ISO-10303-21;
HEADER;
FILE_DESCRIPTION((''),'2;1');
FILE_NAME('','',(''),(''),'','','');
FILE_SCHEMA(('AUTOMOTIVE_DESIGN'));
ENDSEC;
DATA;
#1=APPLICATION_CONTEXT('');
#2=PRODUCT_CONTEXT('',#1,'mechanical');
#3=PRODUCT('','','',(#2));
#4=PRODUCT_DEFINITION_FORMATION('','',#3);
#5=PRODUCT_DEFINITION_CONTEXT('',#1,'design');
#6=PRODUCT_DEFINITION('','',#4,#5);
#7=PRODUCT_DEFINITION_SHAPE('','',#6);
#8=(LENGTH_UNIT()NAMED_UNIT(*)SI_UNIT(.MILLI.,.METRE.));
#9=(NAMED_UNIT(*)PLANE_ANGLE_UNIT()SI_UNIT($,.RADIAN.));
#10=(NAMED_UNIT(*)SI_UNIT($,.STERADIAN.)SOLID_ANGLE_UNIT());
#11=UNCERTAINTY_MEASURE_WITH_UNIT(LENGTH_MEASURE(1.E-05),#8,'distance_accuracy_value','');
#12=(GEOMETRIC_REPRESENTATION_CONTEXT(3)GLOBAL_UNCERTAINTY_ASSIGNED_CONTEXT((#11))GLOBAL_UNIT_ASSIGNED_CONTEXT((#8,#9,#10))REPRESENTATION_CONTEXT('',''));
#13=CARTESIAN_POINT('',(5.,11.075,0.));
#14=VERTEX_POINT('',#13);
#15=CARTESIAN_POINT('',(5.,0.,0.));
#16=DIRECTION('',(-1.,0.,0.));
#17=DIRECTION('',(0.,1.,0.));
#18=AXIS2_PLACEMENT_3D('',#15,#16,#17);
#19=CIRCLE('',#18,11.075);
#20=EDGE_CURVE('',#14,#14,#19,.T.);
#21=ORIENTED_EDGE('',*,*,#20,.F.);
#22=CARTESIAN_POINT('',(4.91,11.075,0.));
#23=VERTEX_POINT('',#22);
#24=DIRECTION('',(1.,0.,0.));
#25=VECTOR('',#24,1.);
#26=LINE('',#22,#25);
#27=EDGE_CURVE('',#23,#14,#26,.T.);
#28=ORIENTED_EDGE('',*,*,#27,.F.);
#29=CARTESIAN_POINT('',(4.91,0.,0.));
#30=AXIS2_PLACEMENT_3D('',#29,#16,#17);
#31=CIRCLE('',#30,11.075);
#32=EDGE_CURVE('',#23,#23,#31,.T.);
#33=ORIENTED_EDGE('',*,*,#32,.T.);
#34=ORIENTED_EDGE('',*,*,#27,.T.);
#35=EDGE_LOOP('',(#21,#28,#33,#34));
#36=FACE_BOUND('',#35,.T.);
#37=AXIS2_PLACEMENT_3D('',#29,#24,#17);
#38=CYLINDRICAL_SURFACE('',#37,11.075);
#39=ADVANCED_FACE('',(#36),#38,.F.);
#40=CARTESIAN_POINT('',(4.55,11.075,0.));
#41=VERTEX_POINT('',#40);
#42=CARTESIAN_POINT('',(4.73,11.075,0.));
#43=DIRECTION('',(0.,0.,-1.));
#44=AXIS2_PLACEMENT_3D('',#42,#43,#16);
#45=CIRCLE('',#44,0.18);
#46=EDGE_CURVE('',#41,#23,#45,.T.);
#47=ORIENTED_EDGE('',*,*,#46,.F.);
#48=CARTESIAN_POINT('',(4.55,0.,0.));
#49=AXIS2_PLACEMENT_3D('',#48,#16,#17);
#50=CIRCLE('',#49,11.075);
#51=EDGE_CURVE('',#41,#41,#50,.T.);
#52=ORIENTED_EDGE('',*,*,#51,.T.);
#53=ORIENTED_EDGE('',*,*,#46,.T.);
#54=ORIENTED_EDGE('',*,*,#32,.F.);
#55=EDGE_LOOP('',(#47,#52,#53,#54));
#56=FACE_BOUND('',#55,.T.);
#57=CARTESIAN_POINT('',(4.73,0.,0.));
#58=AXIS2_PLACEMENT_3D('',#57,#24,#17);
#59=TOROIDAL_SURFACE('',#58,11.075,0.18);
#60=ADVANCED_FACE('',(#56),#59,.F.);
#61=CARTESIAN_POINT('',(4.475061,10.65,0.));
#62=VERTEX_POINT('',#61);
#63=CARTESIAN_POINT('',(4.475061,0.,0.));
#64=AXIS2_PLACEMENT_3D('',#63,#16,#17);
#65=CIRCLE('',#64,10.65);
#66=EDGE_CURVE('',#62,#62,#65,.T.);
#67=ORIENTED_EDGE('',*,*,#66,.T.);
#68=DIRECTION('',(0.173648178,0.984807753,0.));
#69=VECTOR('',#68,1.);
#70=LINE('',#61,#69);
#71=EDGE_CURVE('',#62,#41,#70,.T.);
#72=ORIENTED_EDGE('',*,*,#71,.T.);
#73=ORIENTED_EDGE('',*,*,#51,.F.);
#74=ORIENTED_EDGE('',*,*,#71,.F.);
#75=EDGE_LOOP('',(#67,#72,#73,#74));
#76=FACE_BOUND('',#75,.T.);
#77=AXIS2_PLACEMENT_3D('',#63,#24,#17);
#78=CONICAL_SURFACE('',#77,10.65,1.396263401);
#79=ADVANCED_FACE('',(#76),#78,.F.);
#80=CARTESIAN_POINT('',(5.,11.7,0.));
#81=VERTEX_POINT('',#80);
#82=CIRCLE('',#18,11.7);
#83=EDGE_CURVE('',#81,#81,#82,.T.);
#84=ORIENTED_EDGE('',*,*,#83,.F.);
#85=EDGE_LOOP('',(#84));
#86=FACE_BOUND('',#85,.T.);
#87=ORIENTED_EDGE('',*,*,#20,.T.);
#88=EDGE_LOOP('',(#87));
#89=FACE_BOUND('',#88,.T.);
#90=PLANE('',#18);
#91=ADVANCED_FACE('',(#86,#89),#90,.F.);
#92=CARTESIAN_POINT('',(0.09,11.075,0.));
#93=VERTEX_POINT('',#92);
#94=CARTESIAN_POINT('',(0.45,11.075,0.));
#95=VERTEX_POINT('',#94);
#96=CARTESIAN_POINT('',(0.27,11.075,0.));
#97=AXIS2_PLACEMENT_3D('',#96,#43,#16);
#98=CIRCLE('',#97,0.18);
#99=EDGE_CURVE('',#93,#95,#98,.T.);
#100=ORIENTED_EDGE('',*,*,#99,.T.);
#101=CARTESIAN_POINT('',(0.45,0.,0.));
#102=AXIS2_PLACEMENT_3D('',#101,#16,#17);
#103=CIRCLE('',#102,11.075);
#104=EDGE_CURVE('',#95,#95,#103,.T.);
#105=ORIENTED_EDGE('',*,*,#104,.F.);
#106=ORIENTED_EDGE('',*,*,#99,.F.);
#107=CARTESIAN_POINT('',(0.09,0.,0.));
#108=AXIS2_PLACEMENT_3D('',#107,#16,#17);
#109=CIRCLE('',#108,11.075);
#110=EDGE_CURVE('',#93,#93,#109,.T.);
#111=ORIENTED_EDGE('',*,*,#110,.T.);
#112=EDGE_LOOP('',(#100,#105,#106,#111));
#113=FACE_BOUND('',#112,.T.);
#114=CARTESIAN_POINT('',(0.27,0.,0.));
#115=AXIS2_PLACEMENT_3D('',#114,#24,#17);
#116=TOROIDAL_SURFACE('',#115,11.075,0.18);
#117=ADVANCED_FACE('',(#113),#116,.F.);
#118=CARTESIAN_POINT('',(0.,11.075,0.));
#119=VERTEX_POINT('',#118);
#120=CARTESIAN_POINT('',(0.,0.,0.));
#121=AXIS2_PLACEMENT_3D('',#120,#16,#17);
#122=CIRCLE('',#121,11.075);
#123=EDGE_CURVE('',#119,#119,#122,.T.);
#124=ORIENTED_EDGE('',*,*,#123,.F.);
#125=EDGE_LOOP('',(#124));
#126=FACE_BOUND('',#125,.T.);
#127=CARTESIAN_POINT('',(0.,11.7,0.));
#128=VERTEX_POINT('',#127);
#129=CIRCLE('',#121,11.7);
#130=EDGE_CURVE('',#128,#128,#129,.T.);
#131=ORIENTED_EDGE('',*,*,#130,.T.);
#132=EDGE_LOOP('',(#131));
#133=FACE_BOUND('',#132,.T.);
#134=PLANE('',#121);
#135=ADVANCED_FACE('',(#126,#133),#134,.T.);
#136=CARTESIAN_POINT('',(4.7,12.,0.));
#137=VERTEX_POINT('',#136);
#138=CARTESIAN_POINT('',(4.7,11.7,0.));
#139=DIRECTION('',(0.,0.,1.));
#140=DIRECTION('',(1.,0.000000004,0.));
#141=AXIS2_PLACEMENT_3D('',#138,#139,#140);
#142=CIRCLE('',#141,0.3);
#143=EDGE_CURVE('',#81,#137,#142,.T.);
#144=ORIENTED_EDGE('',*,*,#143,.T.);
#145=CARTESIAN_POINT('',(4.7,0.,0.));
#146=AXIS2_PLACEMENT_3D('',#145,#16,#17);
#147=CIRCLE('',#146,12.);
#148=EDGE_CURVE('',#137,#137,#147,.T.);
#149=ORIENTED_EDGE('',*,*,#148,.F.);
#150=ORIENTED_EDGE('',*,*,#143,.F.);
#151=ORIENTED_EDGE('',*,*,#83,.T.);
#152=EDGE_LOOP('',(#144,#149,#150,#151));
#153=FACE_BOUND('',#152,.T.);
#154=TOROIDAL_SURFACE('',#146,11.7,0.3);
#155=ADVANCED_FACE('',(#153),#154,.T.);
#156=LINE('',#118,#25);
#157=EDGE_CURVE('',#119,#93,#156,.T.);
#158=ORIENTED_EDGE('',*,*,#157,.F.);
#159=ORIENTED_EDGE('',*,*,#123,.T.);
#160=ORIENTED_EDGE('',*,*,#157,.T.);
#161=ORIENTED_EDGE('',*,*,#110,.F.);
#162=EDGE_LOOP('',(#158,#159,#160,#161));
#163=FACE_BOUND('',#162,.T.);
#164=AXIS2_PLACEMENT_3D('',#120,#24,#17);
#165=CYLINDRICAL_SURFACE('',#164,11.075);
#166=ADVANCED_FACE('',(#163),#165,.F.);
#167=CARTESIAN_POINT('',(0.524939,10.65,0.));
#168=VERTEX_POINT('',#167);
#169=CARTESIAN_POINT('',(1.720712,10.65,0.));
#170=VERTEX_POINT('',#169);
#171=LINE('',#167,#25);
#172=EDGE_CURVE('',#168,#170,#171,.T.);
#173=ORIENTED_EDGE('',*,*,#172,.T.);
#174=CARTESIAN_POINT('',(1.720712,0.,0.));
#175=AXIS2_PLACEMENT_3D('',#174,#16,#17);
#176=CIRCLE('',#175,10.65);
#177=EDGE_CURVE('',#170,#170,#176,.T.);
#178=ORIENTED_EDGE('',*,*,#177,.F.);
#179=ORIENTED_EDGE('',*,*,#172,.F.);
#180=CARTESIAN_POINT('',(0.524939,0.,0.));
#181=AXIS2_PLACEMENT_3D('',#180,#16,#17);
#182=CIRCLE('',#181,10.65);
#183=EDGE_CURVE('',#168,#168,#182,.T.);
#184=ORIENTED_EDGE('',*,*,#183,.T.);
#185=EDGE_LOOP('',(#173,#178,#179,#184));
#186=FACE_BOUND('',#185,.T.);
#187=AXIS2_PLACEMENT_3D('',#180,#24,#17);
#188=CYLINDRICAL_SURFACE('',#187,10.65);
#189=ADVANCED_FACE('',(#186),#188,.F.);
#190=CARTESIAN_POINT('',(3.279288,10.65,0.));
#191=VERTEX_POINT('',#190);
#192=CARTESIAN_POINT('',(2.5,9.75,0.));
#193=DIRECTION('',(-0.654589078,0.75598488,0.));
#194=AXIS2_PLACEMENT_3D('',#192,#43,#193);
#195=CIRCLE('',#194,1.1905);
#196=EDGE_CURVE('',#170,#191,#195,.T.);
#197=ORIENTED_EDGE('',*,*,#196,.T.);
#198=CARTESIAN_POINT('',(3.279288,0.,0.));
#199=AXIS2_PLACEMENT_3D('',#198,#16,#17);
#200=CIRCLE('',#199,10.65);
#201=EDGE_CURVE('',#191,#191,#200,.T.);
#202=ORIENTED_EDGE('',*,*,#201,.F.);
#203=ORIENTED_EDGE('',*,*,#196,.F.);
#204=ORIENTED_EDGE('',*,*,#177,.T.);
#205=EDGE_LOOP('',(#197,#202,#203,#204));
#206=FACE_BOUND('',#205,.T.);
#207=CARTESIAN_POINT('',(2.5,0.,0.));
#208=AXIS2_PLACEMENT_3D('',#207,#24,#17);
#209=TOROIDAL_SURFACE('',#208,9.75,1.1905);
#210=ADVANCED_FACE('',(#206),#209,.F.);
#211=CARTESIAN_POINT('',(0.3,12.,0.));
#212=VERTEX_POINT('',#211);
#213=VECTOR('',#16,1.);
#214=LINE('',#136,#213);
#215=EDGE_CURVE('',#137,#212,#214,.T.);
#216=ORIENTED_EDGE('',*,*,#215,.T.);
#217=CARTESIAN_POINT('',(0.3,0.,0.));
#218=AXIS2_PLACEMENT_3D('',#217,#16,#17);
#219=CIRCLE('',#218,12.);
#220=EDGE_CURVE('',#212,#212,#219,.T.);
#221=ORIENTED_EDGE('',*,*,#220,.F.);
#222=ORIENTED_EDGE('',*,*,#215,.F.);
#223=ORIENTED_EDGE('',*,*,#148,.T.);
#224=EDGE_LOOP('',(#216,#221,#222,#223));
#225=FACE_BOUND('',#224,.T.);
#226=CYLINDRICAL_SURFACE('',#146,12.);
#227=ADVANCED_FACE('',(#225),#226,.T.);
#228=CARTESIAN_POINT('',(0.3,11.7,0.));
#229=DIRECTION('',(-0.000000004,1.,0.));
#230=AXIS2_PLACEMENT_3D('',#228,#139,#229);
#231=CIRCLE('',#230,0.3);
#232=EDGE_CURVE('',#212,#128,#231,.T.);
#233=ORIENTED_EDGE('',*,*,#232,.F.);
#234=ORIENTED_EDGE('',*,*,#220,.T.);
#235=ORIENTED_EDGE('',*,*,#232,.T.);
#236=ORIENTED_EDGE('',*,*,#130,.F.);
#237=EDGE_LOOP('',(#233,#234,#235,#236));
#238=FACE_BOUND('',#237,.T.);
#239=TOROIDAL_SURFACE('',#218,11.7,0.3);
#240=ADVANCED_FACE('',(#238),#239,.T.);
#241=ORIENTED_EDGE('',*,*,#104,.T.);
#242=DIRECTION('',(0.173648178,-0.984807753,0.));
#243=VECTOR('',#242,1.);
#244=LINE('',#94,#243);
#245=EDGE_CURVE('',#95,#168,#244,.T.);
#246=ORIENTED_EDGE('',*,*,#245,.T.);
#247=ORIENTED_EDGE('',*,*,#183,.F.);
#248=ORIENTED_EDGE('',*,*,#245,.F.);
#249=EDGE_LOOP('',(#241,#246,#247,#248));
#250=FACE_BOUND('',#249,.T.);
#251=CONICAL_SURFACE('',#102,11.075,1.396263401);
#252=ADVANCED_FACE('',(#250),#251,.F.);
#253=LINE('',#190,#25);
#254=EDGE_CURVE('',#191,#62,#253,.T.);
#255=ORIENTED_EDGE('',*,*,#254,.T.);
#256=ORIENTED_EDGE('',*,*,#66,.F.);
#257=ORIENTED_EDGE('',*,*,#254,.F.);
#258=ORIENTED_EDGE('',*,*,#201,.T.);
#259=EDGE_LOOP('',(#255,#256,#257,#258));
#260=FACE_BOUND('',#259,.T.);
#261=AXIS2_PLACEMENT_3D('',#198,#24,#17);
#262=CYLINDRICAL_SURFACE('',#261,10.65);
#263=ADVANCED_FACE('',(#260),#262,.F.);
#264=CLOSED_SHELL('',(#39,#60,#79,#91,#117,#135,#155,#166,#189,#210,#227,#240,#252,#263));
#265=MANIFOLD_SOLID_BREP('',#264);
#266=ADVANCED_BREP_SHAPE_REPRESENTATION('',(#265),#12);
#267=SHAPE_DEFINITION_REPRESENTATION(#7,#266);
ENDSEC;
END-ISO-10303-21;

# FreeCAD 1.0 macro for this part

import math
import FreeCAD as App
import Part
import Sketcher
Q = App.Units.Quantity

doc = App.newDocument("Part")
body = doc.addObject("PartDesign::Body", "Body")

sketch1 = body.newObject("Sketcher::SketchObject", "Sketch")
sketch1.AttachmentSupport = (doc.getObject("XY_Plane"), [""])
sketch1.MapMode = "FlatFace"
sketch1.addGeometry(Part.LineSegment(App.Vector(0, 11.07, 0), App.Vector(0.09, 11.07, 0)), False)
sketch1.addGeometry(Part.ArcOfCircle(Part.Circle(App.Vector(0.27, 11.07, 0), App.Vector(0, 0, 1), 0.18), math.radians(0), math.radians(180)), False)
sketch1.addGeometry(Part.LineSegment(App.Vector(0.45, 11.07, 0), App.Vector(0.52, 10.65, 0)), False)
sketch1.addGeometry(Part.LineSegment(App.Vector(0.52, 10.65, 0), App.Vector(1.72, 10.65, 0)), False)
sketch1.addGeometry(Part.ArcOfCircle(Part.Circle(App.Vector(2.5, 9.75, 0), App.Vector(0, 0, 1), 1.19), math.radians(49), math.radians(131)), False)
sketch1.addGeometry(Part.LineSegment(App.Vector(3.28, 10.65, 0), App.Vector(4.48, 10.65, 0)), False)
sketch1.addGeometry(Part.LineSegment(App.Vector(4.48, 10.65, 0), App.Vector(4.55, 11.07, 0)), False)
sketch1.addGeometry(Part.ArcOfCircle(Part.Circle(App.Vector(4.73, 11.07, 0), App.Vector(0, 0, 1), 0.18), math.radians(0), math.radians(180)), False)
sketch1.addGeometry(Part.LineSegment(App.Vector(4.91, 11.07, 0), App.Vector(5, 11.07, 0)), False)
sketch1.addGeometry(Part.LineSegment(App.Vector(5, 11.07, 0), App.Vector(5, 11.7, 0)), False)
sketch1.addGeometry(Part.ArcOfCircle(Part.Circle(App.Vector(4.7, 11.7, 0), App.Vector(0, 0, 1), 0.3), math.radians(0), math.radians(90)), False)
sketch1.addGeometry(Part.LineSegment(App.Vector(4.7, 12, 0), App.Vector(0.3, 12, 0)), False)
sketch1.addGeometry(Part.ArcOfCircle(Part.Circle(App.Vector(0.3, 11.7, 0), App.Vector(0, 0, 1), 0.3), math.radians(90), math.radians(180)), False)
sketch1.addGeometry(Part.LineSegment(App.Vector(0, 11.7, 0), App.Vector(0, 11.07, 0)), False)
sketch1.addConstraint(Sketcher.Constraint("Coincident", 0, 2, 1, 2))
sketch1.addConstraint(Sketcher.Constraint("Coincident", 1, 1, 2, 1))
sketch1.addConstraint(Sketcher.Constraint("Coincident", 2, 2, 3, 1))
sketch1.addConstraint(Sketcher.Constraint("Coincident", 3, 2, 4, 2))
sketch1.addConstraint(Sketcher.Constraint("Coincident", 4, 1, 5, 1))
sketch1.addConstraint(Sketcher.Constraint("Coincident", 5, 2, 6, 1))
sketch1.addConstraint(Sketcher.Constraint("Coincident", 6, 2, 7, 2))
sketch1.addConstraint(Sketcher.Constraint("Coincident", 7, 1, 8, 1))
sketch1.addConstraint(Sketcher.Constraint("Coincident", 8, 2, 9, 1))
sketch1.addConstraint(Sketcher.Constraint("Tangent", 9, 2, 10, 1))
sketch1.addConstraint(Sketcher.Constraint("Tangent", 10, 2, 11, 1))
sketch1.addConstraint(Sketcher.Constraint("Tangent", 11, 2, 12, 1))
sketch1.addConstraint(Sketcher.Constraint("Tangent", 12, 2, 13, 1))
sketch1.addConstraint(Sketcher.Constraint("Coincident", 13, 2, 0, 1))
sketch1.addConstraint(Sketcher.Constraint("Horizontal", 0))
sketch1.addConstraint(Sketcher.Constraint("Horizontal", 3))
sketch1.addConstraint(Sketcher.Constraint("Horizontal", 5))
sketch1.addConstraint(Sketcher.Constraint("Horizontal", 8))
sketch1.addConstraint(Sketcher.Constraint("Vertical", 9))
sketch1.addConstraint(Sketcher.Constraint("Horizontal", 11))
sketch1.addConstraint(Sketcher.Constraint("Vertical", 13))
sketch1.addConstraint(Sketcher.Constraint("Equal", 1, 7))
sketch1.addConstraint(Sketcher.Constraint("Equal", 10, 12))
sketch1.addConstraint(Sketcher.Constraint("PointOnObject", 12, 2, -2))
sketch1.addConstraint(Sketcher.Constraint("Horizontal", 1, 3, 7, 3))
sketch1.addConstraint(Sketcher.Constraint("Horizontal", 7, 3, 0, 2))
sketch1.addConstraint(Sketcher.Constraint("Horizontal", 0, 2, 1, 1))
sketch1.addConstraint(Sketcher.Constraint("Horizontal", 3, 2, 4, 1))
sketch1.addConstraint(Sketcher.Constraint("Horizontal", 1, 1, 6, 2))
sketch1.addConstraint(Sketcher.Constraint("Horizontal", 6, 2, 7, 1))
sketch1.addConstraint(Sketcher.Constraint("Equal", 3, 5))
sketch1.addConstraint(Sketcher.Constraint("Equal", 0, 8))
sketch1.addConstraint(Sketcher.Constraint("Equal", 2, 6))
sketch1.addConstraint(Sketcher.Constraint("Radius", 10, 0.3))
sketch1.addConstraint(Sketcher.Constraint("Angle", 2, Q("-80 deg")))
sketch1.addConstraint(Sketcher.Constraint("Radius", 1, 0.18))
sketch1.addConstraint(Sketcher.Constraint("DistanceX", 11, 2, 11, 1, 4.4))
sketch1.addConstraint(Sketcher.Constraint("DistanceY", -1, 1, 10, 2, 12.0))
sketch1.addConstraint(Sketcher.Constraint("DistanceX", 0, 1, 0, 2, 0.09))
sketch1.addConstraint(Sketcher.Constraint("Radius", 4, 1.1905))
sketch1.addConstraint(Sketcher.Constraint("DistanceY", 4, 3, 2, 2, 0.9))
sketch1.addConstraint(Sketcher.Constraint("DistanceY", 9, 1, 9, 2, 0.625))
sketch1.addConstraint(Sketcher.Constraint("DistanceY", -1, 1, 4, 3, 9.75))
revolution = body.newObject("PartDesign::Revolution", "Revolution")
revolution.Profile = sketch1
revolution.ReferenceAxis = (sketch1, ["H_Axis"])
revolution.Angle = 360

doc.recompute()
